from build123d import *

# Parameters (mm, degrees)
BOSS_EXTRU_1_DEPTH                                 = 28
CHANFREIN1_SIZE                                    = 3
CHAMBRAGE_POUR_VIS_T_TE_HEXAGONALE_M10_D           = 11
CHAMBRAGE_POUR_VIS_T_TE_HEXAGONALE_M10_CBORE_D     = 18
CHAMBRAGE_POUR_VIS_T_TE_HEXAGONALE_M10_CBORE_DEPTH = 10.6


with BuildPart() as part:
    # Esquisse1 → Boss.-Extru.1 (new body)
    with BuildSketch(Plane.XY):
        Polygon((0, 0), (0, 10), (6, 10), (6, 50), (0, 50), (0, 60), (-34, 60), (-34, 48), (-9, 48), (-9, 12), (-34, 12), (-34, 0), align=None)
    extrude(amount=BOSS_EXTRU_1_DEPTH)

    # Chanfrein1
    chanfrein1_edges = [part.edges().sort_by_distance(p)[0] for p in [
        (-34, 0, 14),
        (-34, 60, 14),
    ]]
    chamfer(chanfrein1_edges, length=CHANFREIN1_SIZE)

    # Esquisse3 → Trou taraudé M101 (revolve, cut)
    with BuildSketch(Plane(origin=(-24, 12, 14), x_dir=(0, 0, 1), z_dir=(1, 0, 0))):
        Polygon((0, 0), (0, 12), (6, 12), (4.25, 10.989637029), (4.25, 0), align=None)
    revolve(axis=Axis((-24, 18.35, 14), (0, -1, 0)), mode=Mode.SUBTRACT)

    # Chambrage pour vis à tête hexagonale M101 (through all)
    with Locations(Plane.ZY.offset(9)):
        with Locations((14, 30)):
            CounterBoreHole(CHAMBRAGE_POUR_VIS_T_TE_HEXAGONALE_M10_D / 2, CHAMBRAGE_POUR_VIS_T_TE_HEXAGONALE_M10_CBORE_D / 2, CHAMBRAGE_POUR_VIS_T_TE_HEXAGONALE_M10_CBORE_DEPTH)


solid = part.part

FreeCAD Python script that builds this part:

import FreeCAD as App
import Part
import Sketcher
Q = App.Units.Quantity


def edges_at(feature, points):
    """Names of the edges that pass closest to the given points."""
    edges = feature.Shape.Edges
    near = lambda p: min(range(len(edges)), key=lambda i: edges[i].distToShape(Part.Vertex(*p))[0])
    return sorted({f"Edge{near(p) + 1}" for p in points})

doc = App.newDocument("Part")
body = doc.addObject("PartDesign::Body", "Body")

# Sketch on XY plane
sketch1 = body.newObject("Sketcher::SketchObject", "Sketch")
sketch1.AttachmentSupport = (doc.getObject("XY_Plane"), [""])
sketch1.MapMode = "FlatFace"
sketch1.addGeometry([
    Part.LineSegment(App.Vector(0, 0, 0), App.Vector(0, 10, 0)),  # 0
    Part.LineSegment(App.Vector(0, 10, 0), App.Vector(6, 10, 0)),  # 1
    Part.LineSegment(App.Vector(6, 10, 0), App.Vector(6, 50, 0)),  # 2
    Part.LineSegment(App.Vector(6, 50, 0), App.Vector(0, 50, 0)),  # 3
    Part.LineSegment(App.Vector(0, 50, 0), App.Vector(0, 60, 0)),  # 4
    Part.LineSegment(App.Vector(0, 60, 0), App.Vector(-34, 60, 0)),  # 5
    Part.LineSegment(App.Vector(-34, 60, 0), App.Vector(-34, 48, 0)),  # 6
    Part.LineSegment(App.Vector(-34, 48, 0), App.Vector(-9, 48, 0)),  # 7
    Part.LineSegment(App.Vector(-9, 48, 0), App.Vector(-9, 12, 0)),  # 8
    Part.LineSegment(App.Vector(-9, 12, 0), App.Vector(-34, 12, 0)),  # 9
    Part.LineSegment(App.Vector(-34, 12, 0), App.Vector(-34, 0, 0)),  # 10
    Part.LineSegment(App.Vector(-34, 0, 0), App.Vector(0, 0, 0)),  # 11
], False)
sketch1.addConstraint([
    Sketcher.Constraint("Coincident", 0, 2, 1, 1),
    Sketcher.Constraint("Coincident", 1, 2, 2, 1),
    Sketcher.Constraint("Coincident", 2, 2, 3, 1),
    Sketcher.Constraint("Coincident", 3, 2, 4, 1),
    Sketcher.Constraint("Coincident", 4, 2, 5, 1),
    Sketcher.Constraint("Coincident", 5, 2, 6, 1),
    Sketcher.Constraint("Coincident", 6, 2, 7, 1),
    Sketcher.Constraint("Coincident", 7, 2, 8, 1),
    Sketcher.Constraint("Coincident", 8, 2, 9, 1),
    Sketcher.Constraint("Coincident", 9, 2, 10, 1),
    Sketcher.Constraint("Coincident", 10, 2, 11, 1),
    Sketcher.Constraint("Coincident", 11, 2, 0, 1),
    Sketcher.Constraint("Vertical", 0),
    Sketcher.Constraint("Horizontal", 1),
    Sketcher.Constraint("Vertical", 2),
    Sketcher.Constraint("Horizontal", 3),
    Sketcher.Constraint("Vertical", 4),
    Sketcher.Constraint("Horizontal", 5),
    Sketcher.Constraint("Vertical", 6),
    Sketcher.Constraint("Horizontal", 7),
    Sketcher.Constraint("Vertical", 8),
    Sketcher.Constraint("Horizontal", 9),
    Sketcher.Constraint("Vertical", 10),
    Sketcher.Constraint("Horizontal", 11),
    Sketcher.Constraint("Coincident", 11, 2, -1, 1),
    Sketcher.Constraint("PointOnObject", 3, 2, -2),
    Sketcher.Constraint("Vertical", 6, 2, 9, 2),
    Sketcher.Constraint("Equal", 0, 4),
    Sketcher.Constraint("Equal", 6, 10),
    Sketcher.Constraint("DistanceX", 1, 1, 1, 2, 6.0),
    Sketcher.Constraint("DistanceX", 5, 2, 5, 1, 34.0),
    Sketcher.Constraint("DistanceX", 7, 1, 7, 2, 25.0),
    Sketcher.Constraint("DistanceY", 0, 1, 0, 2, 10.0),
    Sketcher.Constraint("DistanceY", 2, 1, 2, 2, 40.0),
    Sketcher.Constraint("DistanceY", 6, 2, 6, 1, 12.0),
])
pad1 = body.newObject("PartDesign::Pad", "Pad")
pad1.Profile = sketch1
pad1.Length = 28
doc.recompute()

chamfer = body.newObject("PartDesign::Chamfer", "Chamfer")
chamfer.Base = (pad1, edges_at(pad1, [(-34, 0, 14), (-34, 60, 14)]))
chamfer.Size = 3

# Sketch on YZ plane
sketch2 = body.newObject("Sketcher::SketchObject", "Sketch001")
sketch2.AttachmentSupport = (doc.getObject("YZ_Plane"), [""])
sketch2.MapMode = "FlatFace"
sketch2.AttachmentOffset = App.Placement(App.Vector(0, 0, -24), App.Rotation())
sketch2.addGeometry([
    Part.LineSegment(App.Vector(0, 14, 0), App.Vector(12, 14, 0)),  # 0
    Part.LineSegment(App.Vector(12, 14, 0), App.Vector(12, 18.25, 0)),  # 1
    Part.LineSegment(App.Vector(12, 18.25, 0), App.Vector(1.010363, 18.25, 0)),  # 2
    Part.LineSegment(App.Vector(1.010363, 18.25, 0), App.Vector(0, 20, 0)),  # 3
    Part.LineSegment(App.Vector(0, 20, 0), App.Vector(0, 14, 0)),  # 4
], False)
sketch2.addGeometry(Part.LineSegment(App.Vector(12, 14, 0), App.Vector(0, 14, 0)), True)  # axis
sketch2.addConstraint([
    Sketcher.Constraint("Coincident", 0, 2, 1, 1),
    Sketcher.Constraint("Coincident", 1, 2, 2, 1),
    Sketcher.Constraint("Coincident", 2, 2, 3, 1),
    Sketcher.Constraint("Coincident", 3, 2, 4, 1),
    Sketcher.Constraint("Coincident", 4, 2, 0, 1),
    Sketcher.Constraint("Horizontal", 0),
    Sketcher.Constraint("Vertical", 1),
    Sketcher.Constraint("Horizontal", 2),
    Sketcher.Constraint("Vertical", 4),
    Sketcher.Constraint("Horizontal", 5),
    Sketcher.Constraint("Coincident", 5, 1, 0, 2),
    Sketcher.Constraint("PointOnObject", 3, 2, -2),
    Sketcher.Constraint("PointOnObject", 5, 2, -2),
    Sketcher.Constraint("DistanceX", 0, 1, 0, 2, 12.0),
    Sketcher.Constraint("DistanceY", 4, 2, 4, 1, 6.0),
    Sketcher.Constraint("Angle", 3, Q("120 deg")),
    Sketcher.Constraint("DistanceY", -1, 1, 0, 2, 14.0),
    Sketcher.Constraint("DistanceY", 1, 1, 1, 2, 4.25),
])
groove = body.newObject("PartDesign::Groove", "Groove")
groove.Profile = sketch2
groove.ReferenceAxis = (sketch2, ["Axis0"])
groove.Angle = 360

# Sketch on YZ plane
sketch3 = body.newObject("Sketcher::SketchObject", "Sketch002")
sketch3.AttachmentSupport = (doc.getObject("YZ_Plane"), [""])
sketch3.MapMode = "FlatFace"
sketch3.AttachmentOffset = App.Placement(App.Vector(0, 0, -9), App.Rotation())
sketch3.addGeometry(Part.Circle(App.Vector(30, 14, 0), App.Vector(0, 0, 1), 5.5), False)
sketch3.addConstraint([
    Sketcher.Constraint("Diameter", 0, 11.0),
    Sketcher.Constraint("DistanceX", -1, 1, 0, 3, 30.0),
    Sketcher.Constraint("DistanceY", -1, 1, 0, 3, 14.0),
])
doc.recompute()
hole = body.newObject("PartDesign::Hole", "Hole")
hole.Profile = sketch3
hole.ThreadType = "None"
hole.Diameter = 11
hole.DepthType = "ThroughAll"
hole.HoleCutType = "Counterbore"
hole.HoleCutDiameter = 18
hole.HoleCutDepth = 10.6
hole.Reversed = True

doc.recompute()
